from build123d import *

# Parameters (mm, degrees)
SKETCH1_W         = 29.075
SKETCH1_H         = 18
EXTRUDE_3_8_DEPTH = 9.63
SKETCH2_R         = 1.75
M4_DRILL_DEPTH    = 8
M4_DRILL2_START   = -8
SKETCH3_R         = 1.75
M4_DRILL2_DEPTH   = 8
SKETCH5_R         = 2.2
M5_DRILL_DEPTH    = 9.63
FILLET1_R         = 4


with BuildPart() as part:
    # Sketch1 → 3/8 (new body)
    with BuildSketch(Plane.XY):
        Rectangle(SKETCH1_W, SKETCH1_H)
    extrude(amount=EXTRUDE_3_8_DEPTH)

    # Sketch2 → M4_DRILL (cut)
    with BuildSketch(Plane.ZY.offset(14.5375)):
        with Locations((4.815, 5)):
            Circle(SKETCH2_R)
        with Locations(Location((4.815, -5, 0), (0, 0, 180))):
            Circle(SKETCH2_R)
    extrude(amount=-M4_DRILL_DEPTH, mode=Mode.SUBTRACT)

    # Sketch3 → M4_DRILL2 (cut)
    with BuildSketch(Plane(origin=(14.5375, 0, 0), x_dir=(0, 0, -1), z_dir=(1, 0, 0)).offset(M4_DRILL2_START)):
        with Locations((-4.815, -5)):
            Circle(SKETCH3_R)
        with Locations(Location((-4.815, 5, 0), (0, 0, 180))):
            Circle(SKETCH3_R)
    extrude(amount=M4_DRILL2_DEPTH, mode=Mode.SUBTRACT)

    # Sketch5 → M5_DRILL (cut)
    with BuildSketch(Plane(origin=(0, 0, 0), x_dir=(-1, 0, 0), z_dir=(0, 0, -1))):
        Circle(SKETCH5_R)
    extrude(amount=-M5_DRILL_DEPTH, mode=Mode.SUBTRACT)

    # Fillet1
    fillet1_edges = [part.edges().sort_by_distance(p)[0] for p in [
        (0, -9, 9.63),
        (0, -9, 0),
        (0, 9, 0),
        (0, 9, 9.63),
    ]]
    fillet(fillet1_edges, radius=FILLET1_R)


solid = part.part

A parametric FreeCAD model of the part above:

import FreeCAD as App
import Part
import Sketcher
from FreeCAD import Vector


def edges_at(feature, points):
    """Names of the edges that pass closest to the given points."""
    edges = feature.Shape.Edges
    near = lambda p: min(range(len(edges)), key=lambda i: edges[i].distToShape(Part.Vertex(*p))[0])
    return sorted({f"Edge{near(p) + 1}" for p in points})

doc = App.newDocument("Part")
body = doc.addObject("PartDesign::Body", "Body")

# Sketch on XY plane
sketch1 = body.newObject("Sketcher::SketchObject", "Sketch")
sketch1.AttachmentSupport = (doc.getObject("XY_Plane"), [""])
sketch1.MapMode = "FlatFace"
sketch1.addGeometry([
    Part.LineSegment(Vector(-15, 9, 0), Vector(-15, -9, 0)),
    Part.LineSegment(Vector(-15, -9, 0), Vector(15, -9, 0)),
    Part.LineSegment(Vector(15, -9, 0), Vector(15, 9, 0)),
    Part.LineSegment(Vector(15, 9, 0), Vector(-15, 9, 0)),
], False)
sketch1.addConstraint([
    Sketcher.Constraint("Coincident", 0, 2, 1, 1),
    Sketcher.Constraint("Coincident", 1, 2, 2, 1),
    Sketcher.Constraint("Coincident", 2, 2, 3, 1),
    Sketcher.Constraint("Coincident", 3, 2, 0, 1),
    Sketcher.Constraint("Vertical", 0),
    Sketcher.Constraint("Horizontal", 1),
    Sketcher.Constraint("Vertical", 2),
    Sketcher.Constraint("Horizontal", 3),
    Sketcher.Constraint("Symmetric", 0, 2, 2, 2, -1, 1),
    Sketcher.Constraint("DistanceY", 0, 2, 0, 1, 18.0),
    Sketcher.Constraint("DistanceX", 1, 1, 1, 2, 29.075),
])
pad1 = body.newObject("PartDesign::Pad", "Pad")
pad1.Profile = sketch1
pad1.Length = 9.63

# Sketch on YZ plane
sketch2 = body.newObject("Sketcher::SketchObject", "Sketch001")
sketch2.AttachmentSupport = (doc.getObject("YZ_Plane"), [""])
sketch2.MapMode = "FlatFace"
sketch2.AttachmentOffset = App.Placement(Vector(0, 0, -14.5375), App.Rotation())
sketch2.addGeometry([
    Part.Circle(Vector(5, 4.8, 0), Vector(0, 0, 1), 1.8),
    Part.Circle(Vector(-5, 4.8, 0), Vector(0, 0, 1), 1.8),
], False)
sketch2.addConstraint([
    Sketcher.Constraint("Equal", 0, 1),
    Sketcher.Constraint("Symmetric", 0, 3, 1, 3, -2),
    Sketcher.Constraint("Diameter", 0, 3.5),
    Sketcher.Constraint("DistanceX", -1, 1, 0, 3, 5.0),
    Sketcher.Constraint("DistanceY", -1, 1, 0, 3, 4.815),
])
pocket1 = body.newObject("PartDesign::Pocket", "Pocket")
pocket1.Profile = sketch2
pocket1.Length = 8
pocket1.Reversed = True

# Sketch on YZ plane
sketch3 = body.newObject("Sketcher::SketchObject", "Sketch002")
sketch3.AttachmentSupport = (doc.getObject("YZ_Plane"), [""])
sketch3.MapMode = "FlatFace"
sketch3.AttachmentOffset = App.Placement(Vector(0, 0, 6.5375), App.Rotation())
sketch3.addGeometry([
    Part.Circle(Vector(-5, 4.8, 0), Vector(0, 0, 1), 1.8),
    Part.Circle(Vector(5, 4.8, 0), Vector(0, 0, 1), 1.8),
], False)
sketch3.addConstraint([
    Sketcher.Constraint("Equal", 0, 1),
    Sketcher.Constraint("Symmetric", 0, 3, 1, 3, -2),
    Sketcher.Constraint("Diameter", 0, 3.5),
    Sketcher.Constraint("DistanceX", 0, 3, -1, 1, 5.0),
    Sketcher.Constraint("DistanceY", -1, 1, 0, 3, 4.815),
])
pocket2 = body.newObject("PartDesign::Pocket", "Pocket001")
pocket2.Profile = sketch3
pocket2.Length = 8
pocket2.Reversed = True

# Sketch on XY plane
sketch4 = body.newObject("Sketcher::SketchObject", "Sketch003")
sketch4.AttachmentSupport = (doc.getObject("XY_Plane"), [""])
sketch4.MapMode = "FlatFace"
sketch4.addGeometry(Part.Circle(Vector(0, 0, 0), Vector(0, 0, 1), 2.2), False)
sketch4.addConstraint([
    Sketcher.Constraint("Coincident", 0, 3, -1, 1),
    Sketcher.Constraint("Diameter", 0, 4.4),
])
pocket3 = body.newObject("PartDesign::Pocket", "Pocket002")
pocket3.Profile = sketch4
pocket3.Length = 9.63
pocket3.Reversed = True
doc.recompute()

fillet = body.newObject("PartDesign::Fillet", "Fillet")
fillet.Base = (pocket3, edges_at(pocket3, [
    (0, -9, 9.63),
    (0, -9, 0),
    (0, 9, 0),
    (0, 9, 9.63),
]))
fillet.Radius = 4

doc.recompute()
